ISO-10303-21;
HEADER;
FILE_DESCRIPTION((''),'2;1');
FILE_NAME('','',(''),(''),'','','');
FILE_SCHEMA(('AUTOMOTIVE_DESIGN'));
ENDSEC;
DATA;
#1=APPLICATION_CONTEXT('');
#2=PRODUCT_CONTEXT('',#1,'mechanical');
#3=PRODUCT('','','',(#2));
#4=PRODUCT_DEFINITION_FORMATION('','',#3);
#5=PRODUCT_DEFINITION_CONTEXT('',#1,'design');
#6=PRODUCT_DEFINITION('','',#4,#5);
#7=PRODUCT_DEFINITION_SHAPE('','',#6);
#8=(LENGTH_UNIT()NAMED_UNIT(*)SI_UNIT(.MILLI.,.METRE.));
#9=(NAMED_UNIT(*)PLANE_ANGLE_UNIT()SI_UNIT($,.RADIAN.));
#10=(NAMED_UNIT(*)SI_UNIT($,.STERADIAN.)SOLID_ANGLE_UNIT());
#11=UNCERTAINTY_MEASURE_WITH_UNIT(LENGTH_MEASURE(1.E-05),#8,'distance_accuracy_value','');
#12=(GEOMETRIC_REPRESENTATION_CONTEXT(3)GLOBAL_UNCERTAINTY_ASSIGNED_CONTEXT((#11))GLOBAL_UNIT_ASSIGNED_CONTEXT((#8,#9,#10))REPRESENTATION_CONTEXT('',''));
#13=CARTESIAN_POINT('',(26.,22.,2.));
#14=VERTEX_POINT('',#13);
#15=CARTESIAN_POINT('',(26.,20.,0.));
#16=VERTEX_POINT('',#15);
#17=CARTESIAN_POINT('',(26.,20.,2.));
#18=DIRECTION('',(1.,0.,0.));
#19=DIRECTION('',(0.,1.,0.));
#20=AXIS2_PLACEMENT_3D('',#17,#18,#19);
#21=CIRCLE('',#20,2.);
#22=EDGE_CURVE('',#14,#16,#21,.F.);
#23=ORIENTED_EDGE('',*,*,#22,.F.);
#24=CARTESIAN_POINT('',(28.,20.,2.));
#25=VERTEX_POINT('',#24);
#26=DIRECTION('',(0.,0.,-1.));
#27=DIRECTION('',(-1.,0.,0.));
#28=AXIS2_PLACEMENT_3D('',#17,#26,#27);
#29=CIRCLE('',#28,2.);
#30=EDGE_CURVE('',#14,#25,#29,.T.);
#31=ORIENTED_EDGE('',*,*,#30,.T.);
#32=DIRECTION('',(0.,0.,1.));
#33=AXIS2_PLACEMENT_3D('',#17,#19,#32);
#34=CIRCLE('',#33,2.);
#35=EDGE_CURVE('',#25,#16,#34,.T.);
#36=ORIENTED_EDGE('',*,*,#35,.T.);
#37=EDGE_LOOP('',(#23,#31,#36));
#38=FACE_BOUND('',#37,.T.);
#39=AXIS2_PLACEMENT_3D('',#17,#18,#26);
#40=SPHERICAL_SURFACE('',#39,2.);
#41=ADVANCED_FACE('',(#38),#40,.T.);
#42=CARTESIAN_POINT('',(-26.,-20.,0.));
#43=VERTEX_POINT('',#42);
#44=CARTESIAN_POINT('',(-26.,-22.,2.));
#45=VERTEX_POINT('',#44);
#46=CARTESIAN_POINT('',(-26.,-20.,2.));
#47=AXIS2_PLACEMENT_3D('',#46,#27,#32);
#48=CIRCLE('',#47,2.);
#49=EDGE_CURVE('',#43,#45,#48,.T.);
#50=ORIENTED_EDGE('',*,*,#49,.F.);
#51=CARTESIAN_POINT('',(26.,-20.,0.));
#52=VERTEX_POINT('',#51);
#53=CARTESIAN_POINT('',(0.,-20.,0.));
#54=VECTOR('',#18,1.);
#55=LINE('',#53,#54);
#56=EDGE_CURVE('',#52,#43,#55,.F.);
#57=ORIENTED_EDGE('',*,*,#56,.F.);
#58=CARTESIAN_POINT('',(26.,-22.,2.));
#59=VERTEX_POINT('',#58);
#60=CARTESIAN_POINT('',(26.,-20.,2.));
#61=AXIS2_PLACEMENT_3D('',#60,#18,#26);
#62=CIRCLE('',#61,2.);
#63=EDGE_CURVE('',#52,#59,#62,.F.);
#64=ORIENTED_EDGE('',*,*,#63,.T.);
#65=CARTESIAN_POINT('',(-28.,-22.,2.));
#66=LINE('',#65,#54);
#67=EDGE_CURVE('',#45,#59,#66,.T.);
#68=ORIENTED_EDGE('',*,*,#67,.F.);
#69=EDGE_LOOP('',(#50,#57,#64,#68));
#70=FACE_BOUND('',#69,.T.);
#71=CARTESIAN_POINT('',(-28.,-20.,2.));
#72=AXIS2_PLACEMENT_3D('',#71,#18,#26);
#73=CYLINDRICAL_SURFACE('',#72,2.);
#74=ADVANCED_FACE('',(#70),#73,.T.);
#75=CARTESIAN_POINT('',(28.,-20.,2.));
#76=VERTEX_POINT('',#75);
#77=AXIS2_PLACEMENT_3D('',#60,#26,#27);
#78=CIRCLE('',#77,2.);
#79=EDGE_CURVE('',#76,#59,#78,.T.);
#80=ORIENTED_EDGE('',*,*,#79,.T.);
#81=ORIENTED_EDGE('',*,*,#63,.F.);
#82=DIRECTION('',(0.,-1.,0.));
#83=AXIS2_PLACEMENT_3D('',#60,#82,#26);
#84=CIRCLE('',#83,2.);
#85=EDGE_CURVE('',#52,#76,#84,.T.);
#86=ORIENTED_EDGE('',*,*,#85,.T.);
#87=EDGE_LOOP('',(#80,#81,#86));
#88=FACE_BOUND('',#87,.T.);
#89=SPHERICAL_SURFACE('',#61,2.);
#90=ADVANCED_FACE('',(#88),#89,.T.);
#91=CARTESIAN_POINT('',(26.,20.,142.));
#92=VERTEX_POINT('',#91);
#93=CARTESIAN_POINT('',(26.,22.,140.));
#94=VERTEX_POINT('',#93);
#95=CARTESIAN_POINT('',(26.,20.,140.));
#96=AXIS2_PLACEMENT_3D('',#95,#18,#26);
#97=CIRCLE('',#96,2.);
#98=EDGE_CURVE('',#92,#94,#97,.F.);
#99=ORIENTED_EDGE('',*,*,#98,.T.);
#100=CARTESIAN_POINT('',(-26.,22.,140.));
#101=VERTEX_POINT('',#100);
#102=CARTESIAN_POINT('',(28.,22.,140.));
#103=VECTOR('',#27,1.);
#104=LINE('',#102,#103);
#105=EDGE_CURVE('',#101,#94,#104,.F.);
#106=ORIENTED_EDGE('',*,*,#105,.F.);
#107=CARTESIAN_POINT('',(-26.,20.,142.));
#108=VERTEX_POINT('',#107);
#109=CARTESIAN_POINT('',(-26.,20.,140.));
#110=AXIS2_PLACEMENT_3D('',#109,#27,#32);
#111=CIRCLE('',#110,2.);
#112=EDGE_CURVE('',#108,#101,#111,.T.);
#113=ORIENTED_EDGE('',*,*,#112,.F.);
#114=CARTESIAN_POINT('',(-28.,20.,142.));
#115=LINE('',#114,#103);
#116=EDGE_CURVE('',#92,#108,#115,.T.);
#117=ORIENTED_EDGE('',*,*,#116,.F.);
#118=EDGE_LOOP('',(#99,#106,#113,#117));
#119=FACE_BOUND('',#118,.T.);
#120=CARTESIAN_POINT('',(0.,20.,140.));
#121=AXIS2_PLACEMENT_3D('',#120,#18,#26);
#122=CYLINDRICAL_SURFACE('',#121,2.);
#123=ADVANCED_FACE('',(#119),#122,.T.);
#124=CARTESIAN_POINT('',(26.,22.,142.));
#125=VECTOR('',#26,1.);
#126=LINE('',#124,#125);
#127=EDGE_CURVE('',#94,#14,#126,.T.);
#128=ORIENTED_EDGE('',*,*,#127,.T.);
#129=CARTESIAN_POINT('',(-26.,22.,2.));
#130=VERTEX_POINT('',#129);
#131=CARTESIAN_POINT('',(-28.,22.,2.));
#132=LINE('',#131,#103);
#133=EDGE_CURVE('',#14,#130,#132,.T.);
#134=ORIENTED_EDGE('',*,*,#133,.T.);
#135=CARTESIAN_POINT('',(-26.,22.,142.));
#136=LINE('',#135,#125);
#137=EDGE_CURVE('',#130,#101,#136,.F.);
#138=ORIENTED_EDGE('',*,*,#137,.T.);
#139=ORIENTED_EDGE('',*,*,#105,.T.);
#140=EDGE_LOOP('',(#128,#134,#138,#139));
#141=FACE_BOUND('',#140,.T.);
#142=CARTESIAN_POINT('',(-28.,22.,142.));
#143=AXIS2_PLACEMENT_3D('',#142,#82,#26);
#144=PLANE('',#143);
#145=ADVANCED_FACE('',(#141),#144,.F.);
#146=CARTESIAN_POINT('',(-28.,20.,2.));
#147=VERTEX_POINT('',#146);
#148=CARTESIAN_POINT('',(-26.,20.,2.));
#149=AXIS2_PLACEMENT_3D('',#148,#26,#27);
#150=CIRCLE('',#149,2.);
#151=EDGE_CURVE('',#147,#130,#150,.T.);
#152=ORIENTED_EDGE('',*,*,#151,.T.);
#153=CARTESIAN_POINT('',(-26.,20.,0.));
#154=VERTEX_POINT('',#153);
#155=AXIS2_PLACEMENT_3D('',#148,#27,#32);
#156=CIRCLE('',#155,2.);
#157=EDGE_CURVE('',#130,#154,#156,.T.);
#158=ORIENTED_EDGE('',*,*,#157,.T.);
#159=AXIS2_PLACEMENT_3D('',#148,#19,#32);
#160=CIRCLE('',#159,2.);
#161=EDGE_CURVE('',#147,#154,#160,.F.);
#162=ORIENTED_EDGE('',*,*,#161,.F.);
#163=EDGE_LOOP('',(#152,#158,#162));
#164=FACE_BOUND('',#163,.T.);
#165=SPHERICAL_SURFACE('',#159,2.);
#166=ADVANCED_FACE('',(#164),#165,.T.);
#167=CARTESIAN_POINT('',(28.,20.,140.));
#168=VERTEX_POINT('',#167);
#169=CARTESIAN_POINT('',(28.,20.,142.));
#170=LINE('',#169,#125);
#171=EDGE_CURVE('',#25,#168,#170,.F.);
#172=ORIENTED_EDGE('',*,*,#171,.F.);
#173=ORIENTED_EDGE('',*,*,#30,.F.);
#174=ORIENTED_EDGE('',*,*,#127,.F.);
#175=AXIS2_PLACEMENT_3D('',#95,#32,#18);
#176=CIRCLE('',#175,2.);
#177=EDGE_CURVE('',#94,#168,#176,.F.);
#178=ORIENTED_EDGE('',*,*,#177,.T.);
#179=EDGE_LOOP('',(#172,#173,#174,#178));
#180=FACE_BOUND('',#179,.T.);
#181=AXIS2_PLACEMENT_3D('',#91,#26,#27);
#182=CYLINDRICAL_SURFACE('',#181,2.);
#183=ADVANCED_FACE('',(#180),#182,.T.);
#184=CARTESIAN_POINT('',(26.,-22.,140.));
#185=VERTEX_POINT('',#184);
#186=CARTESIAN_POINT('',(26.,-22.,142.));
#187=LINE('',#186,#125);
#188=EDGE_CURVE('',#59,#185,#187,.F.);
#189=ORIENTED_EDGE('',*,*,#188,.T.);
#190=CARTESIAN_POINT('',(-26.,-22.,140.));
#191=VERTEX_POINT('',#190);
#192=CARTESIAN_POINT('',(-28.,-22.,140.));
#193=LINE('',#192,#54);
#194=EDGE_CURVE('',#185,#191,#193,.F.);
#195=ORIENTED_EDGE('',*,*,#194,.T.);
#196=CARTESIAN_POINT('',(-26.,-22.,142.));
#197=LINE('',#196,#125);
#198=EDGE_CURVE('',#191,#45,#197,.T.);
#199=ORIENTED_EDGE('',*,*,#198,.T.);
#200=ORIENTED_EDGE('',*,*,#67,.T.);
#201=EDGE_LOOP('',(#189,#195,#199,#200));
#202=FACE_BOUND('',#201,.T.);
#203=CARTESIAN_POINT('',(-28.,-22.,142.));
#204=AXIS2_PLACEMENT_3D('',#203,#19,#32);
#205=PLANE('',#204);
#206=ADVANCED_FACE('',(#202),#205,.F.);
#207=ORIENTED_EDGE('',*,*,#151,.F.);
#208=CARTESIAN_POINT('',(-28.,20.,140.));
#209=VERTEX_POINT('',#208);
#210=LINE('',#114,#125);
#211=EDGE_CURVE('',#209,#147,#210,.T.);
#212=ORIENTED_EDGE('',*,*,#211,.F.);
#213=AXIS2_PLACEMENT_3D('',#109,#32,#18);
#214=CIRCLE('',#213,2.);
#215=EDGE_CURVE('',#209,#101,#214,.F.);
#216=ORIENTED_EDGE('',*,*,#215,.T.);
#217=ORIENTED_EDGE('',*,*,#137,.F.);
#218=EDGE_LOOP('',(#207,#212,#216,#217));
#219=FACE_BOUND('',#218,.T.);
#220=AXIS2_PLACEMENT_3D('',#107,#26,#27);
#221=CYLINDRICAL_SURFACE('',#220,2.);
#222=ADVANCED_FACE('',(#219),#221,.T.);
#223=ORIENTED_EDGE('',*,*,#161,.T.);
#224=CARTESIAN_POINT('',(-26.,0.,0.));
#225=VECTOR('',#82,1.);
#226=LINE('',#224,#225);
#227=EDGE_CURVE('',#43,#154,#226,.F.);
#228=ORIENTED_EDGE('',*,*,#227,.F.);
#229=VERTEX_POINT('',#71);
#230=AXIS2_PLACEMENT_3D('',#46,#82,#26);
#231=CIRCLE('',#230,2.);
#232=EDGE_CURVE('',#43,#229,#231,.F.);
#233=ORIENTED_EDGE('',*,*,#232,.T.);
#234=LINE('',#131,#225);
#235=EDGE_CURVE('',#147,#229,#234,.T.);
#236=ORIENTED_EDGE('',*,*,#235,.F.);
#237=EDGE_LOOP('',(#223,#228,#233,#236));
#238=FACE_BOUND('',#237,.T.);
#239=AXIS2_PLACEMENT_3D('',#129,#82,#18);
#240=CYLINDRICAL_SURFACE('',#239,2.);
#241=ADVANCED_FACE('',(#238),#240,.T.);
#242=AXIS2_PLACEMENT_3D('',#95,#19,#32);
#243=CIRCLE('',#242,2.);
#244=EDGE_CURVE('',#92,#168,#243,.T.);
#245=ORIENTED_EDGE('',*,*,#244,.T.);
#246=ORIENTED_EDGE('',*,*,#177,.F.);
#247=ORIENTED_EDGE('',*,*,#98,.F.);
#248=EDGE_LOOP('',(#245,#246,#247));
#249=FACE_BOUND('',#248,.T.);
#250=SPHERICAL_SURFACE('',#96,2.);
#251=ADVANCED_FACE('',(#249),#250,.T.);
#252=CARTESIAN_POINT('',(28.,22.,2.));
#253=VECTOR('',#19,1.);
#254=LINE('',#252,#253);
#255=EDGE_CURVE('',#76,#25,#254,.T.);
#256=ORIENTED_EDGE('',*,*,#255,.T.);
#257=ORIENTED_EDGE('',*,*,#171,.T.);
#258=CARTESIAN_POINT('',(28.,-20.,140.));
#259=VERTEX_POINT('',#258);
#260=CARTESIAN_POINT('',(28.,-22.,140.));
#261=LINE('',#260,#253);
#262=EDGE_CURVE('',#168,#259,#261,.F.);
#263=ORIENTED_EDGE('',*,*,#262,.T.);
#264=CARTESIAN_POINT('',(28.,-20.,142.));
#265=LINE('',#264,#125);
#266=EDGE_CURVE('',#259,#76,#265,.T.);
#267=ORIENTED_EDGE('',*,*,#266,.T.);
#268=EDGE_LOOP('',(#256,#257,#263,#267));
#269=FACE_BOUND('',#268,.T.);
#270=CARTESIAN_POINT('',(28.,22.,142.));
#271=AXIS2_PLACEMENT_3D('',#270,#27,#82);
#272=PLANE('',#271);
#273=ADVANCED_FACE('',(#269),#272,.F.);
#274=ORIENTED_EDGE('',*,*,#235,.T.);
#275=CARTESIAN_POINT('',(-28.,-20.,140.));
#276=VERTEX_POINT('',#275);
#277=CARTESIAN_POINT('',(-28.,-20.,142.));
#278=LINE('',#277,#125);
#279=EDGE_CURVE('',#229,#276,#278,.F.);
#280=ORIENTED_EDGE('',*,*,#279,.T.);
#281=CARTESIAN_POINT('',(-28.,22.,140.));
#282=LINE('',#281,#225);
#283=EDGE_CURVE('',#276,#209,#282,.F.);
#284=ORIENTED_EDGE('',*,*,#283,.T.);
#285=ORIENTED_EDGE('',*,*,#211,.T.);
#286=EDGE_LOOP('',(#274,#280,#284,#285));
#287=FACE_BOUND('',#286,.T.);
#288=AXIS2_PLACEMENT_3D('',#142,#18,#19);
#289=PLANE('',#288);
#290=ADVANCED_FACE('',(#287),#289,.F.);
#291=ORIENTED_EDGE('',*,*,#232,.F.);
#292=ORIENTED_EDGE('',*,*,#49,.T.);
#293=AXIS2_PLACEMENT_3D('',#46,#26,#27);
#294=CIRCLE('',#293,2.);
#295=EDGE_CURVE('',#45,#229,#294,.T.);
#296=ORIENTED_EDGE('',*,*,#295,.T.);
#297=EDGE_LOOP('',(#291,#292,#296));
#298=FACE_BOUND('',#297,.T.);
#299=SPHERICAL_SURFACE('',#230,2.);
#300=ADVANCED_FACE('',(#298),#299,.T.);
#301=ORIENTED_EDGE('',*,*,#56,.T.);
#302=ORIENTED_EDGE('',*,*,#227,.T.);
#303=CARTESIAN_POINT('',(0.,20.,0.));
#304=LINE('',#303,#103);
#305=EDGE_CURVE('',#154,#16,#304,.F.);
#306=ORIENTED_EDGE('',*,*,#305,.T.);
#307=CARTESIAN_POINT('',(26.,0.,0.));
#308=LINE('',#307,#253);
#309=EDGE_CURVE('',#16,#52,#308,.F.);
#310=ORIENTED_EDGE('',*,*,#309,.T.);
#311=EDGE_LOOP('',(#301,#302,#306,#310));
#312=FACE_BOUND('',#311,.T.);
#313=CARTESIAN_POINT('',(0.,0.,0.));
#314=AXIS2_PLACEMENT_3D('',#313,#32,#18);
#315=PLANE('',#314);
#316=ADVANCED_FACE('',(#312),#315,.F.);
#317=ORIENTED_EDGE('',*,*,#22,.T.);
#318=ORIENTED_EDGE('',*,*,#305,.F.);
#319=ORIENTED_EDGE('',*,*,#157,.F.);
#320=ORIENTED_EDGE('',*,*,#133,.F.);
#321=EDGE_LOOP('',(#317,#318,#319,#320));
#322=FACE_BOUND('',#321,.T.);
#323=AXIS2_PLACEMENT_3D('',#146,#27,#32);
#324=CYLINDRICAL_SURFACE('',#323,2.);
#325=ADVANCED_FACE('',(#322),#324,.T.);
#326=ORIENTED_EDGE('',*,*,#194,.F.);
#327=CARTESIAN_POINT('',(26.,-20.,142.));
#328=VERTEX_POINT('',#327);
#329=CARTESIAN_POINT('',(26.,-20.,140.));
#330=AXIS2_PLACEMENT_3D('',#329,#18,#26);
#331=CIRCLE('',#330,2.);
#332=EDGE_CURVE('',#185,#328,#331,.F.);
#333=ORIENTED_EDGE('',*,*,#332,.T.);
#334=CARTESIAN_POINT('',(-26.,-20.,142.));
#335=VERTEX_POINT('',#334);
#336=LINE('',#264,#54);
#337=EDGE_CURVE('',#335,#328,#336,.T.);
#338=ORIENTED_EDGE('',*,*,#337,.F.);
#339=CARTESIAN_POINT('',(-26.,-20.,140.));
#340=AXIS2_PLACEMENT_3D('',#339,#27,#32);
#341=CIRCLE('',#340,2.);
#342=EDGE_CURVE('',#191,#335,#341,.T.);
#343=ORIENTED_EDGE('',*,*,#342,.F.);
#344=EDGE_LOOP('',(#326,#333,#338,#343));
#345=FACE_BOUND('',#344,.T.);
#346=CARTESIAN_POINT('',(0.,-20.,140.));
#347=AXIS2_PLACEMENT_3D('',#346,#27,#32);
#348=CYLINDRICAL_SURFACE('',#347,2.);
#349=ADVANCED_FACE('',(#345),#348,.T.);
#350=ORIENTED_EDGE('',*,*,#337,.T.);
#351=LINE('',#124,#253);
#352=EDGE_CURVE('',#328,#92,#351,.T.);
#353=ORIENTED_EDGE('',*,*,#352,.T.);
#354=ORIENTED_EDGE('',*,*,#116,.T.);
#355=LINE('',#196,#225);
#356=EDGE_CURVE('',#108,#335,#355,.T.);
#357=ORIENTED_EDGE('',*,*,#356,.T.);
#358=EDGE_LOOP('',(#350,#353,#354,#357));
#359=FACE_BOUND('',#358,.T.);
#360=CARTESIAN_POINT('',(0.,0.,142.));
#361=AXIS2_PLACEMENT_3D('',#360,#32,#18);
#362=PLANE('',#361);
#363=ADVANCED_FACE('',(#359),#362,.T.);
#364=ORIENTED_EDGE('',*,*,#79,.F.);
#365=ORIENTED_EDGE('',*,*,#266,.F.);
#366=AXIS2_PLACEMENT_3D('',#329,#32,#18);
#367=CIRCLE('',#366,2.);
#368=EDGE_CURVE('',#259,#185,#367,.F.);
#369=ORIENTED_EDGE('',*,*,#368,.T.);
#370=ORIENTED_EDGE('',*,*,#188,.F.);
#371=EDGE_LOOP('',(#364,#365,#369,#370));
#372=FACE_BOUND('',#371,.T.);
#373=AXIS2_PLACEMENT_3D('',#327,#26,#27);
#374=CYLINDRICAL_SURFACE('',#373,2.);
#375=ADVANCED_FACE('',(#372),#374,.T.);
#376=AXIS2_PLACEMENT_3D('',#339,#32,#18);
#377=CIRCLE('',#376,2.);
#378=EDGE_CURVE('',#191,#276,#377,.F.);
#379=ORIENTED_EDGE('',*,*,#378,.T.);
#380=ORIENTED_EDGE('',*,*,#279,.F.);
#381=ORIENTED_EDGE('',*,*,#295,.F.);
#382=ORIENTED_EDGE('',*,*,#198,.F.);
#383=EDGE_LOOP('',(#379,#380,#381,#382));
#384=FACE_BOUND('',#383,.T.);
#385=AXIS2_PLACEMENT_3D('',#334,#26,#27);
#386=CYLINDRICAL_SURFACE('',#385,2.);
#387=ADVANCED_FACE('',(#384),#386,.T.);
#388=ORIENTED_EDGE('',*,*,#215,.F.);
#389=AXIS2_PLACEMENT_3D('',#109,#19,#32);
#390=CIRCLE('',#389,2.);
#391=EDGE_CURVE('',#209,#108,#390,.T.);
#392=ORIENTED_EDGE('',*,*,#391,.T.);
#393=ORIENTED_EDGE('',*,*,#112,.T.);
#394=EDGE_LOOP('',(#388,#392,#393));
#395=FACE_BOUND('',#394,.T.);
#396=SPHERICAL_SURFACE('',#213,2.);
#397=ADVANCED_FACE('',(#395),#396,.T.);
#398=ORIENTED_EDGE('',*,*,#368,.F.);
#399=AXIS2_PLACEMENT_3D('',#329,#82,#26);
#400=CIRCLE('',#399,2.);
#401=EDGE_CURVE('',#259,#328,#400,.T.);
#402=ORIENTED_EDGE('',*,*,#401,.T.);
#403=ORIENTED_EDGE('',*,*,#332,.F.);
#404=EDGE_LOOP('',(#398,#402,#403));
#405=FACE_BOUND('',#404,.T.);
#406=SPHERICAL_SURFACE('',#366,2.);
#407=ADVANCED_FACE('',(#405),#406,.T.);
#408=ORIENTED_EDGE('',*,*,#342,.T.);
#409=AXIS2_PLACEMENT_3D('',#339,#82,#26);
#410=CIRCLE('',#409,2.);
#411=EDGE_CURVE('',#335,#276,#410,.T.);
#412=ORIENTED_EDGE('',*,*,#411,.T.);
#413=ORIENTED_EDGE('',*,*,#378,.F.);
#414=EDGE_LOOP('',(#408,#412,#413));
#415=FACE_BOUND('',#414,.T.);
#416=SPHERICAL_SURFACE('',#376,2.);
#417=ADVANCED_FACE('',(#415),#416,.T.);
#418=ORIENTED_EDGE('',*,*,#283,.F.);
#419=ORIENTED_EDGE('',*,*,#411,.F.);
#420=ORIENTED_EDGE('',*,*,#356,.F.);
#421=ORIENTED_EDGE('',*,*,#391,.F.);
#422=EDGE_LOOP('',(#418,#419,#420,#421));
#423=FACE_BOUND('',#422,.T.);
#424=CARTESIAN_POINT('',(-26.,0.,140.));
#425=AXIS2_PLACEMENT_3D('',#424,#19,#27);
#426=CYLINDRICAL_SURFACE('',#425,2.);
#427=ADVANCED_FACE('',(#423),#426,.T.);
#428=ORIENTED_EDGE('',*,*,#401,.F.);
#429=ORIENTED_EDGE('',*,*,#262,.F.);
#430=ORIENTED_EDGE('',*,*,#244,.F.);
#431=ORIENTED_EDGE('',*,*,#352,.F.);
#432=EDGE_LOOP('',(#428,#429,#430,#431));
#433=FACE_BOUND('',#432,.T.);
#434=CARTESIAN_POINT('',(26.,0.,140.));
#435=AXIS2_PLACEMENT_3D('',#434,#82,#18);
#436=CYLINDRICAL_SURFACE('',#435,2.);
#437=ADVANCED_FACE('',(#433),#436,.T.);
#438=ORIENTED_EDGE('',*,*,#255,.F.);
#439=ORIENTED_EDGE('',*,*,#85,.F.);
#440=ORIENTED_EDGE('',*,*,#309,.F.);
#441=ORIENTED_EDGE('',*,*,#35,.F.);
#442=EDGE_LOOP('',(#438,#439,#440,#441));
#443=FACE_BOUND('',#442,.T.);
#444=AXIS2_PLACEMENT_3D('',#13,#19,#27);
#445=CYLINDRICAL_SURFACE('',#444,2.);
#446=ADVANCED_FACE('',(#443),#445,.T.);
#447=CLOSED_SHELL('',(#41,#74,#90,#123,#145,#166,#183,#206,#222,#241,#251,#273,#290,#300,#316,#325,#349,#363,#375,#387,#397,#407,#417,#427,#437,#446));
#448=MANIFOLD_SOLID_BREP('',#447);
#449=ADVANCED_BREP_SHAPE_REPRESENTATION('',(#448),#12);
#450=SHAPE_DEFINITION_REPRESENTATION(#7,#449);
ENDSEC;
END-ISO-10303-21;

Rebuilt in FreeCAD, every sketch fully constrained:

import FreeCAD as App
import Part
import Sketcher
from FreeCAD import Vector


def add_polygon(sketch, points):
    """Adds a closed chain of lines whose ends are joined by coincident constraints."""
    first, n = sketch.GeometryCount, len(points)
    for a, b in zip(points, points[1:] + points[:1]):
        sketch.addGeometry(Part.LineSegment(App.Vector(*a, 0), App.Vector(*b, 0)), False)
    for i in range(n):
        sketch.addConstraint(Sketcher.Constraint("Coincident", first + i, 2, first + (i + 1) % n, 1))

doc = App.newDocument("Part")
body = doc.addObject("PartDesign::Body", "Body")

# Sketch on XY plane
sketch1 = body.newObject("Sketcher::SketchObject", "Sketch")
sketch1.AttachmentSupport = (doc.getObject("XY_Plane"), [""])
sketch1.MapMode = "FlatFace"
add_polygon(sketch1, [(-28, 22), (-28, -22), (28, -22), (28, 22)])  # lines 0-3
sketch1.addConstraint(Sketcher.Constraint("Vertical", 0))
sketch1.addConstraint(Sketcher.Constraint("Horizontal", 1))
sketch1.addConstraint(Sketcher.Constraint("Vertical", 2))
sketch1.addConstraint(Sketcher.Constraint("Horizontal", 3))
sketch1.addConstraint(Sketcher.Constraint("Symmetric", 0, 2, 2, 2, -1, 1))
sketch1.addConstraint(Sketcher.Constraint("DistanceX", 1, 1, 1, 2, 56.0))
sketch1.addConstraint(Sketcher.Constraint("DistanceY", 0, 2, 0, 1, 44.0))
pad1 = body.newObject("PartDesign::Pad", "Pad")
pad1.Profile = sketch1
pad1.Length = 142
doc.recompute()

fillet = body.newObject("PartDesign::Fillet", "Fillet")
fillet.Base = (pad1, ["Edge1"])
fillet.UseAllEdges = True
fillet.Radius = 2

doc.recompute()
